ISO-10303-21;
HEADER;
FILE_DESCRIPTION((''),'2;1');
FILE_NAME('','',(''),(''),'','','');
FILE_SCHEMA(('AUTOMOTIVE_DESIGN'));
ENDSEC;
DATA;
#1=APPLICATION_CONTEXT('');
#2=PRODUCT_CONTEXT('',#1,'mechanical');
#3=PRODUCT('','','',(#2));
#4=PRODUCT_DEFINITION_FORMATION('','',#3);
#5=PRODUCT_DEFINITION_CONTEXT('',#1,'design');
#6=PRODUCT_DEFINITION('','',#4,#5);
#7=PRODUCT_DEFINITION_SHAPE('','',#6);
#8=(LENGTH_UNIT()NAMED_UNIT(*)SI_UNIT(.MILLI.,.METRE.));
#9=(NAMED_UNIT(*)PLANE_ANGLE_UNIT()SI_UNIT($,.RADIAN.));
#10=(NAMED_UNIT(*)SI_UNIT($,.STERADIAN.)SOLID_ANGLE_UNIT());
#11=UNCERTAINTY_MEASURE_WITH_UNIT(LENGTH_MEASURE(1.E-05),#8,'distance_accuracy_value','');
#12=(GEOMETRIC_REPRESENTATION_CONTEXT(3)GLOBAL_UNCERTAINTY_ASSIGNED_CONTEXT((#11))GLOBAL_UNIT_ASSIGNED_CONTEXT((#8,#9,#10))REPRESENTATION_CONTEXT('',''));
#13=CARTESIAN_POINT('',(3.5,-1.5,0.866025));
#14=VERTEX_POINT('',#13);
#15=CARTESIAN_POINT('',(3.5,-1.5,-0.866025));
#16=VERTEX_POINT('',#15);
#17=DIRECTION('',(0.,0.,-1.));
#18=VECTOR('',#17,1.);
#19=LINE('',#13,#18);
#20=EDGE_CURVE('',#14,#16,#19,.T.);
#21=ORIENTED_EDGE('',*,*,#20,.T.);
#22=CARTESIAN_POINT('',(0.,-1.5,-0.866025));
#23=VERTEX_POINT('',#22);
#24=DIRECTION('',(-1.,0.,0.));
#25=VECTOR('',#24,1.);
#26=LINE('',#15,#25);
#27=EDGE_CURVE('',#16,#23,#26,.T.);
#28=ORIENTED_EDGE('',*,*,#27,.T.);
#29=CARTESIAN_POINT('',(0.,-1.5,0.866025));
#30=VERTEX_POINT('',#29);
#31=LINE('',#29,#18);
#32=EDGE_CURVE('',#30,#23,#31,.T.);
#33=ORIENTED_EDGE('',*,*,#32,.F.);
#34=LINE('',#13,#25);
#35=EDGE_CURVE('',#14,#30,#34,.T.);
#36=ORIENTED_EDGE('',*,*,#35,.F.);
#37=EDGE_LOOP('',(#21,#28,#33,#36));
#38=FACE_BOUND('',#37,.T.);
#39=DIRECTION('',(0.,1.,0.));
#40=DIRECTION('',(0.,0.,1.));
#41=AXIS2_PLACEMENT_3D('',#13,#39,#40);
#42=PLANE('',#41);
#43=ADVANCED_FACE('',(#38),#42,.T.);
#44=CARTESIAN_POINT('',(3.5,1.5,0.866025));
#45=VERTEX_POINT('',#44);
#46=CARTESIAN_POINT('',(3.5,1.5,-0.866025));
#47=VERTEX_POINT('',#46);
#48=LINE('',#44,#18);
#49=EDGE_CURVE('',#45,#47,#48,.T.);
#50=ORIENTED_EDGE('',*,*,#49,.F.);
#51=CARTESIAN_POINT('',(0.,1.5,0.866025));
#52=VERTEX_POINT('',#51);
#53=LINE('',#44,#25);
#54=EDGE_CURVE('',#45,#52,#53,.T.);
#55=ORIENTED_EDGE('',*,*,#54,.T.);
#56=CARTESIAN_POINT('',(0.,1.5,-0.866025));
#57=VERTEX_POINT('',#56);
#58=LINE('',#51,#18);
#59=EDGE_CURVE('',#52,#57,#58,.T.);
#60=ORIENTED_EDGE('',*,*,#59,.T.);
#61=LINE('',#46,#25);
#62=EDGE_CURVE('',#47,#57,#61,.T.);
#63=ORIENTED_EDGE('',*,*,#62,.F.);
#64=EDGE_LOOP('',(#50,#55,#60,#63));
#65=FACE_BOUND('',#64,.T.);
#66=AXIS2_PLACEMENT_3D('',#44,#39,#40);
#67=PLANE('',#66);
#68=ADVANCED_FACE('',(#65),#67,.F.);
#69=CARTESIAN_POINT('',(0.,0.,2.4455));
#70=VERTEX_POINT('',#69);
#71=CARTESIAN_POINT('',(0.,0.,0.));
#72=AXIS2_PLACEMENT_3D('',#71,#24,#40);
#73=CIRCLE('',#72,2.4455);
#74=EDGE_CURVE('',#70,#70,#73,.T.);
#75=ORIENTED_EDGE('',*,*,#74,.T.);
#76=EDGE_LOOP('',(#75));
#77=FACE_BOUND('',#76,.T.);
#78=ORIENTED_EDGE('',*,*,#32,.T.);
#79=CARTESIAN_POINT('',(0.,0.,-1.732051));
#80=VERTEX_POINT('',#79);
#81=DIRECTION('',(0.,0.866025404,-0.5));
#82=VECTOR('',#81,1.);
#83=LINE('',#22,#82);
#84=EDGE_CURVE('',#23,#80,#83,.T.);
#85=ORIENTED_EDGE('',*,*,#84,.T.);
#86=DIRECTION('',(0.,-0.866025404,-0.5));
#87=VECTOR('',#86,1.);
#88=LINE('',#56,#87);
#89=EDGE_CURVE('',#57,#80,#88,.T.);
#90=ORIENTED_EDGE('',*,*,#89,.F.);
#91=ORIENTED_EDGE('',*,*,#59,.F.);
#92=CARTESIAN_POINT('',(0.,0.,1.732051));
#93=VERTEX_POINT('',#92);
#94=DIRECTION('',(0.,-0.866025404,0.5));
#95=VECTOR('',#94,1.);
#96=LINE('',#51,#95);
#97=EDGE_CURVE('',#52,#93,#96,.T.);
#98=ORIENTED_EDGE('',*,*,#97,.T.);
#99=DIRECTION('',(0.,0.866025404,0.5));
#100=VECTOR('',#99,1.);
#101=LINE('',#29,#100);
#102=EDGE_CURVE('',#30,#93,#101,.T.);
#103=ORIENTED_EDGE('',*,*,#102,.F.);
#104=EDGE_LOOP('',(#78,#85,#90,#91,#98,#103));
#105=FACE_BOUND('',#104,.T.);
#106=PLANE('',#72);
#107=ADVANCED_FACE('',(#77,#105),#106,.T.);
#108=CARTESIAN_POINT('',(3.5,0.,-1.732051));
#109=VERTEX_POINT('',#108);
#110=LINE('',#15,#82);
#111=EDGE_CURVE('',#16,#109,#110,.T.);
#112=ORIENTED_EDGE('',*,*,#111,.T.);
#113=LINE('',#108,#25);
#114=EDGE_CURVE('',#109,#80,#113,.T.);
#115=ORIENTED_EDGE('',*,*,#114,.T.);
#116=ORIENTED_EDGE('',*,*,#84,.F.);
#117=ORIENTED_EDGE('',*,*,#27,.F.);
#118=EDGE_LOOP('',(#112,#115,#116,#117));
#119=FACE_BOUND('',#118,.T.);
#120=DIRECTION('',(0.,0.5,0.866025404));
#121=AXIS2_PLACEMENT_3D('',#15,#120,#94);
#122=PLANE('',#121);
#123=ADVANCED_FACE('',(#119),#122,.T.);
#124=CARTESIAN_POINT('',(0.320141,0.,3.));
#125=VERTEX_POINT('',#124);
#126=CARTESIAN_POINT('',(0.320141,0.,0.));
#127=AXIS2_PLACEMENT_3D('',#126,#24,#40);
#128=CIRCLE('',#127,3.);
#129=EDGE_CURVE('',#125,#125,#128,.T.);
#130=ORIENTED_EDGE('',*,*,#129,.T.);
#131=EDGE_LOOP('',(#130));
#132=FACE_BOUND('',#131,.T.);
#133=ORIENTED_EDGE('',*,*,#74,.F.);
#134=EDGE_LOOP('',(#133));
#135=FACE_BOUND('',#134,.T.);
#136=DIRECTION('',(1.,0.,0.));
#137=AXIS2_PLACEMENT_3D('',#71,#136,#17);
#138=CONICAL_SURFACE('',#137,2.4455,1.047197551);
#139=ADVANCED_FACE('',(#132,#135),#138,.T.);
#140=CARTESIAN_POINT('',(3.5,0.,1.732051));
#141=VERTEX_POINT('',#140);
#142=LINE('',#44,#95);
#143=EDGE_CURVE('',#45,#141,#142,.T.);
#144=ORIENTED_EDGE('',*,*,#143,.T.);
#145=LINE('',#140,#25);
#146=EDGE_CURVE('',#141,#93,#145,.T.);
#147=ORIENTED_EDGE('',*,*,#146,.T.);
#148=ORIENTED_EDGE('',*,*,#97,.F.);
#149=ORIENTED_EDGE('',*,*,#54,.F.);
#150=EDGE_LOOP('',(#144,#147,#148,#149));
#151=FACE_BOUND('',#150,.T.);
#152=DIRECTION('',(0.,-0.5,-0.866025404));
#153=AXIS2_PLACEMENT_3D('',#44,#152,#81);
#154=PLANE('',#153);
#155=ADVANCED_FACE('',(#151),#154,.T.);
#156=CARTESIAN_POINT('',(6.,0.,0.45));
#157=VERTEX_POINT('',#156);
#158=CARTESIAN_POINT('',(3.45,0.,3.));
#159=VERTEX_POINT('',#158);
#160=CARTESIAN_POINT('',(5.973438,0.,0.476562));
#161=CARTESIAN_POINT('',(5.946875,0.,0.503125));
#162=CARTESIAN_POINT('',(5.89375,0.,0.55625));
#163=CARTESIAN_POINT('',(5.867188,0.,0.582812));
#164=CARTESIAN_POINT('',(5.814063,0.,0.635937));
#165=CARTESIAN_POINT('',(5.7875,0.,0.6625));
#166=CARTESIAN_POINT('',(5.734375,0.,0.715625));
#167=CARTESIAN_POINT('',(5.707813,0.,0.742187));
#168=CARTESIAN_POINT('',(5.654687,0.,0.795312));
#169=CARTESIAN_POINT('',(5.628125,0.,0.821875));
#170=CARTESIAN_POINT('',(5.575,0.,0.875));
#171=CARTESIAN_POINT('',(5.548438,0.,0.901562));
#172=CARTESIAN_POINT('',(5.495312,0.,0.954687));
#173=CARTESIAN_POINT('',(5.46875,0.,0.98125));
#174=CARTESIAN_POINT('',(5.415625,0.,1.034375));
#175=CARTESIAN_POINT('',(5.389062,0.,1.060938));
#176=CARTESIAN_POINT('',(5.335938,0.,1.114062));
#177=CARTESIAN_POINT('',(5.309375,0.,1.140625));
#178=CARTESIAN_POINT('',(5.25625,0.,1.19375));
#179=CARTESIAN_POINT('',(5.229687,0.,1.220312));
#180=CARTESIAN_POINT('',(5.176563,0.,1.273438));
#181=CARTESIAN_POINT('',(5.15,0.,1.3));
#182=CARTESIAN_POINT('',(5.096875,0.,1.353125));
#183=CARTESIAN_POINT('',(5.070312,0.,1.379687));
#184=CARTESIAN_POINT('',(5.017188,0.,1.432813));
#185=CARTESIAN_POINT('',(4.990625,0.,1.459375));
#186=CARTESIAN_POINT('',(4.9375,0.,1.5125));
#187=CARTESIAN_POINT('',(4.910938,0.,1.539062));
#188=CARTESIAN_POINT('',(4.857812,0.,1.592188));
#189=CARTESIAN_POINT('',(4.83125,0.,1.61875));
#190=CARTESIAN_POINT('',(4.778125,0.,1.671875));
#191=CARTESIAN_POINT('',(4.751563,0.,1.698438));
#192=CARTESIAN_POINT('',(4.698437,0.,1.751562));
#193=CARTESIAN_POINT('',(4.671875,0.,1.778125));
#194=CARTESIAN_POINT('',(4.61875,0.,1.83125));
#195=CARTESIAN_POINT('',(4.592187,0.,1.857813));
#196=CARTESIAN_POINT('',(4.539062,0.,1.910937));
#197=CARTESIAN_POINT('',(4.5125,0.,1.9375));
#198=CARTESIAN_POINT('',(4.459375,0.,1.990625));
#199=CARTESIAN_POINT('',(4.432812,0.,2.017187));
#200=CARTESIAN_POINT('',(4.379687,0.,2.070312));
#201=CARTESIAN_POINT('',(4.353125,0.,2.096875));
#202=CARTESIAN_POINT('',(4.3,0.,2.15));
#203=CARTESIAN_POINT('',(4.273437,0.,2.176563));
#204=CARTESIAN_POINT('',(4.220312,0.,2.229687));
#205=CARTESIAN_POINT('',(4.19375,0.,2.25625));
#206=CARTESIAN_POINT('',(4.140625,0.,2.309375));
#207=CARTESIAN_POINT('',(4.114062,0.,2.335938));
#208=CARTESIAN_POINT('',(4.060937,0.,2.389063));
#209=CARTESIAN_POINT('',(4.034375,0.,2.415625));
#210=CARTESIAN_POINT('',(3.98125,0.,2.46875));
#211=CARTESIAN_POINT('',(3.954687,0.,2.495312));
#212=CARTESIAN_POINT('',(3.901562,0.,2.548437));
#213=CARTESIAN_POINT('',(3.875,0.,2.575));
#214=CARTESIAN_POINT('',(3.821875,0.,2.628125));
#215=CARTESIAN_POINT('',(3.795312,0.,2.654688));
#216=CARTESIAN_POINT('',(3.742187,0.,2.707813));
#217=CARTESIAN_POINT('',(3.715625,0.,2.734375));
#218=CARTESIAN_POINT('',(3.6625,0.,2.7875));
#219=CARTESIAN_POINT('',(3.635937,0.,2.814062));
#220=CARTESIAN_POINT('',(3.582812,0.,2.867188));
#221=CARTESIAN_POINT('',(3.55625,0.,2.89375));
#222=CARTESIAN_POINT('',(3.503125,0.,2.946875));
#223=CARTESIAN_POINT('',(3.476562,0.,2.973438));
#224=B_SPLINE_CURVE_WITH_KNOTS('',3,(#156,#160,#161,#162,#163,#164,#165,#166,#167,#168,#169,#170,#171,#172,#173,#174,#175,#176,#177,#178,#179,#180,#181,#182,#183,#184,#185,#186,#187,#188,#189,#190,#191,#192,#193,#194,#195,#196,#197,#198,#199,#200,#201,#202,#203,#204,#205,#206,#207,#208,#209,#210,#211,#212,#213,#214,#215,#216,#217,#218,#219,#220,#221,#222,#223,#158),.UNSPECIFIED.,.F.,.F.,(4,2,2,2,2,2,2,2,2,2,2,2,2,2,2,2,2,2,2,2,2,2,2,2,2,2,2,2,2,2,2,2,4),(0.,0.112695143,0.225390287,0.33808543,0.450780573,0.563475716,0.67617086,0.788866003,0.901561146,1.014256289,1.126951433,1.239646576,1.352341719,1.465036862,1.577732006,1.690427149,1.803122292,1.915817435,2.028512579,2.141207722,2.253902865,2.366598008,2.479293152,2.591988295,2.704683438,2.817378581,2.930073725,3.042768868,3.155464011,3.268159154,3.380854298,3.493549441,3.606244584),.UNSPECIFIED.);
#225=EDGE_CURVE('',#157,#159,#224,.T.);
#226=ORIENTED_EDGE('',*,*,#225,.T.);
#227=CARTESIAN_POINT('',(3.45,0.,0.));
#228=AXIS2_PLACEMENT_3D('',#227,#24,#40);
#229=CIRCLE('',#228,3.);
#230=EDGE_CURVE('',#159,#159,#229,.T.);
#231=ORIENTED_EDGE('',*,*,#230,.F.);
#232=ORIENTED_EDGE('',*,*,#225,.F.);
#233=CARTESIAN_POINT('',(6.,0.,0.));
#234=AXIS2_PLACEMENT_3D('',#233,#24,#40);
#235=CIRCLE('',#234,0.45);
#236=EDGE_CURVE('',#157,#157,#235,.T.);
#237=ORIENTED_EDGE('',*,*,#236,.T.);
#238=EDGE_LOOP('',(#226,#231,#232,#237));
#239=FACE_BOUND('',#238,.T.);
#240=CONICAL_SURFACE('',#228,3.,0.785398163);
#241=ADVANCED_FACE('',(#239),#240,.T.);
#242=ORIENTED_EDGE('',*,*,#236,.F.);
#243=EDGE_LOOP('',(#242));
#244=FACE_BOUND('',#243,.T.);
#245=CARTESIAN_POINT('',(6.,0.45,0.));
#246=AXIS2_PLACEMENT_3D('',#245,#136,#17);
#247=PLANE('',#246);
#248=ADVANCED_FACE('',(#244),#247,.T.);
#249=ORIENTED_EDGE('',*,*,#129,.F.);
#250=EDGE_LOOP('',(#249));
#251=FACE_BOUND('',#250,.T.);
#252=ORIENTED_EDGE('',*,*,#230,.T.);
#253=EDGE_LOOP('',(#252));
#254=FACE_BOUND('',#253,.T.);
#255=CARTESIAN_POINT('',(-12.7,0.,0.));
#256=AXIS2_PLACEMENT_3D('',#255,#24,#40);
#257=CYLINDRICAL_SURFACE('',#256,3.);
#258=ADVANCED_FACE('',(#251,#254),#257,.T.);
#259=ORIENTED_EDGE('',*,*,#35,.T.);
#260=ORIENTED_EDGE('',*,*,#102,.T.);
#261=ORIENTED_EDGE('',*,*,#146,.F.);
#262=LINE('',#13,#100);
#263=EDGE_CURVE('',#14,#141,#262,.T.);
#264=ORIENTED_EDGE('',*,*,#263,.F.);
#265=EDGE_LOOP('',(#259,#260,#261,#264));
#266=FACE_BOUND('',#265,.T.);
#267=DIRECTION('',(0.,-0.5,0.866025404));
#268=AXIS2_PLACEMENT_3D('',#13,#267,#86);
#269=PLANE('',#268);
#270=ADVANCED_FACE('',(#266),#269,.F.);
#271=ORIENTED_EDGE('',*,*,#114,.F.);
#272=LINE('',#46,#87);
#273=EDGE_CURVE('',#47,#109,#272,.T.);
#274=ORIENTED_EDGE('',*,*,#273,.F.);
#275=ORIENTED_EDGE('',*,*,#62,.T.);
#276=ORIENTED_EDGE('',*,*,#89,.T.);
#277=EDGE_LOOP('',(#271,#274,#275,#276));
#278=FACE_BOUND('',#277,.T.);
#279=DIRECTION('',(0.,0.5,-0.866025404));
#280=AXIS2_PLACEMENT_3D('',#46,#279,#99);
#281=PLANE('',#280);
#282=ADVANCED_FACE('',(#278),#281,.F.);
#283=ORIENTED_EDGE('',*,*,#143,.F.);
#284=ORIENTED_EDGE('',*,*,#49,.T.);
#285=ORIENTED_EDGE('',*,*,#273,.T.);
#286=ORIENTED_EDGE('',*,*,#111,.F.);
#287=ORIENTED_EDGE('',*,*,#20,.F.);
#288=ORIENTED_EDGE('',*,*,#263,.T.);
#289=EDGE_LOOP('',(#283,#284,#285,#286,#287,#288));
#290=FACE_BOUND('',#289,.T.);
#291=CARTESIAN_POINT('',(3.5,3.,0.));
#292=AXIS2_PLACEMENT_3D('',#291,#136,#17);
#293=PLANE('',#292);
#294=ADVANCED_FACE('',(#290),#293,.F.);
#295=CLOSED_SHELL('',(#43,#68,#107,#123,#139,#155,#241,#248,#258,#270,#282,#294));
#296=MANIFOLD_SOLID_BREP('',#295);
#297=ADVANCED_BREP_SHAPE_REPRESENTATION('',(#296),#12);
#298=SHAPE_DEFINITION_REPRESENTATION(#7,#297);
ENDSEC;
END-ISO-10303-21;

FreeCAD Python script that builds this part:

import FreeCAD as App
import Part
import Sketcher
Q = App.Units.Quantity


def add_polygon(sketch, points):
    """Adds a closed chain of lines whose ends are joined by coincident constraints."""
    first, n = sketch.GeometryCount, len(points)
    for a, b in zip(points, points[1:] + points[:1]):
        sketch.addGeometry(Part.LineSegment(App.Vector(*a, 0), App.Vector(*b, 0)), False)
    for i in range(n):
        sketch.addConstraint(Sketcher.Constraint("Coincident", first + i, 2, first + (i + 1) % n, 1))

doc = App.newDocument("Part")
params = doc.addObject("Spreadsheet::Sheet", "Params")
for row, (alias, value) in enumerate([
    ("sketch1_width", "6 mm"),
    ("sketch1_height", "0.45 mm"),
    ("revolution_angle", "360 deg"),
    ("pocket1_length", "3.5 mm"),
], start=1):
    params.set(f"A{row}", alias)
    params.set(f"B{row}", "=" + value)
    params.setAlias(f"B{row}", alias)

body = doc.addObject("PartDesign::Body", "Body")

sketch1 = body.newObject("Sketcher::SketchObject", "Sketch")
sketch1.AttachmentSupport = (doc.getObject("XY_Plane"), [""])
sketch1.MapMode = "FlatFace"
add_polygon(sketch1, [(0, 2.4455), (0, 0), (6, 0), (6, 0.45), (3.45, 3), (0.320141, 3)])
sketch1.addConstraint(Sketcher.Constraint("Vertical", 0))
sketch1.addConstraint(Sketcher.Constraint("Horizontal", 1))
sketch1.addConstraint(Sketcher.Constraint("Vertical", 2))
sketch1.addConstraint(Sketcher.Constraint("Horizontal", 4))
sketch1.addConstraint(Sketcher.Constraint("Coincident", 0, 2, -1, 1))
sketch1.addConstraint(Sketcher.Constraint("DistanceX", 1, 1, 1, 2, 6.0))
sketch1.addConstraint(Sketcher.Constraint("Angle", 3, Q("135 deg")))
sketch1.addConstraint(Sketcher.Constraint("Angle", 5, Q("-120 deg")))
sketch1.addConstraint(Sketcher.Constraint("DistanceY", -1, 1, 3, 2, 3.0))
sketch1.addConstraint(Sketcher.Constraint("DistanceY", 2, 1, 2, 2, 0.45))
sketch1.addConstraint(Sketcher.Constraint("DistanceY", 0, 2, 0, 1, 2.4455))
sketch1.setExpression("Constraints[11]", "Params.sketch1_width")
sketch1.setExpression("Constraints[15]", "Params.sketch1_height")
revolution = body.newObject("PartDesign::Revolution", "Revolution")
revolution.Profile = sketch1
revolution.ReferenceAxis = (sketch1, ["H_Axis"])
revolution.setExpression("Angle", "Params.revolution_angle")

sketch2 = body.newObject("Sketcher::SketchObject", "Sketch001")
sketch2.AttachmentSupport = (doc.getObject("YZ_Plane"), [""])
sketch2.MapMode = "FlatFace"
add_polygon(sketch2, [(1.5, 0.866025), (1.5, -0.866025), (0, -1.732051), (-1.5, -0.866025), (-1.5, 0.866025), (0, 1.732051)])
sketch2.addConstraint(Sketcher.Constraint("Vertical", 0))
sketch2.addConstraint(Sketcher.Constraint("Vertical", 3))
sketch2.addConstraint(Sketcher.Constraint("Symmetric", 0, 2, 3, 2, -1, 1))
sketch2.addConstraint(Sketcher.Constraint("Symmetric", 1, 2, 4, 2, -1, 1))
sketch2.addConstraint(Sketcher.Constraint("PointOnObject", 1, 2, -2))
sketch2.addConstraint(Sketcher.Constraint("Parallel", 2, 5))
sketch2.addConstraint(Sketcher.Constraint("Horizontal", 0, 2, 2, 2))
sketch2.addConstraint(Sketcher.Constraint("Angle", 1, Q("-150 deg")))
sketch2.addConstraint(Sketcher.Constraint("DistanceX", 2, 2, 0, 2, 3.0))
sketch2.addConstraint(Sketcher.Constraint("DistanceY", 0, 2, 0, 1, 1.732051))
pocket1 = body.newObject("PartDesign::Pocket", "Pocket")
pocket1.Profile = sketch2
pocket1.setExpression("Length", "Params.pocket1_length")
pocket1.Reversed = True

doc.recompute()
